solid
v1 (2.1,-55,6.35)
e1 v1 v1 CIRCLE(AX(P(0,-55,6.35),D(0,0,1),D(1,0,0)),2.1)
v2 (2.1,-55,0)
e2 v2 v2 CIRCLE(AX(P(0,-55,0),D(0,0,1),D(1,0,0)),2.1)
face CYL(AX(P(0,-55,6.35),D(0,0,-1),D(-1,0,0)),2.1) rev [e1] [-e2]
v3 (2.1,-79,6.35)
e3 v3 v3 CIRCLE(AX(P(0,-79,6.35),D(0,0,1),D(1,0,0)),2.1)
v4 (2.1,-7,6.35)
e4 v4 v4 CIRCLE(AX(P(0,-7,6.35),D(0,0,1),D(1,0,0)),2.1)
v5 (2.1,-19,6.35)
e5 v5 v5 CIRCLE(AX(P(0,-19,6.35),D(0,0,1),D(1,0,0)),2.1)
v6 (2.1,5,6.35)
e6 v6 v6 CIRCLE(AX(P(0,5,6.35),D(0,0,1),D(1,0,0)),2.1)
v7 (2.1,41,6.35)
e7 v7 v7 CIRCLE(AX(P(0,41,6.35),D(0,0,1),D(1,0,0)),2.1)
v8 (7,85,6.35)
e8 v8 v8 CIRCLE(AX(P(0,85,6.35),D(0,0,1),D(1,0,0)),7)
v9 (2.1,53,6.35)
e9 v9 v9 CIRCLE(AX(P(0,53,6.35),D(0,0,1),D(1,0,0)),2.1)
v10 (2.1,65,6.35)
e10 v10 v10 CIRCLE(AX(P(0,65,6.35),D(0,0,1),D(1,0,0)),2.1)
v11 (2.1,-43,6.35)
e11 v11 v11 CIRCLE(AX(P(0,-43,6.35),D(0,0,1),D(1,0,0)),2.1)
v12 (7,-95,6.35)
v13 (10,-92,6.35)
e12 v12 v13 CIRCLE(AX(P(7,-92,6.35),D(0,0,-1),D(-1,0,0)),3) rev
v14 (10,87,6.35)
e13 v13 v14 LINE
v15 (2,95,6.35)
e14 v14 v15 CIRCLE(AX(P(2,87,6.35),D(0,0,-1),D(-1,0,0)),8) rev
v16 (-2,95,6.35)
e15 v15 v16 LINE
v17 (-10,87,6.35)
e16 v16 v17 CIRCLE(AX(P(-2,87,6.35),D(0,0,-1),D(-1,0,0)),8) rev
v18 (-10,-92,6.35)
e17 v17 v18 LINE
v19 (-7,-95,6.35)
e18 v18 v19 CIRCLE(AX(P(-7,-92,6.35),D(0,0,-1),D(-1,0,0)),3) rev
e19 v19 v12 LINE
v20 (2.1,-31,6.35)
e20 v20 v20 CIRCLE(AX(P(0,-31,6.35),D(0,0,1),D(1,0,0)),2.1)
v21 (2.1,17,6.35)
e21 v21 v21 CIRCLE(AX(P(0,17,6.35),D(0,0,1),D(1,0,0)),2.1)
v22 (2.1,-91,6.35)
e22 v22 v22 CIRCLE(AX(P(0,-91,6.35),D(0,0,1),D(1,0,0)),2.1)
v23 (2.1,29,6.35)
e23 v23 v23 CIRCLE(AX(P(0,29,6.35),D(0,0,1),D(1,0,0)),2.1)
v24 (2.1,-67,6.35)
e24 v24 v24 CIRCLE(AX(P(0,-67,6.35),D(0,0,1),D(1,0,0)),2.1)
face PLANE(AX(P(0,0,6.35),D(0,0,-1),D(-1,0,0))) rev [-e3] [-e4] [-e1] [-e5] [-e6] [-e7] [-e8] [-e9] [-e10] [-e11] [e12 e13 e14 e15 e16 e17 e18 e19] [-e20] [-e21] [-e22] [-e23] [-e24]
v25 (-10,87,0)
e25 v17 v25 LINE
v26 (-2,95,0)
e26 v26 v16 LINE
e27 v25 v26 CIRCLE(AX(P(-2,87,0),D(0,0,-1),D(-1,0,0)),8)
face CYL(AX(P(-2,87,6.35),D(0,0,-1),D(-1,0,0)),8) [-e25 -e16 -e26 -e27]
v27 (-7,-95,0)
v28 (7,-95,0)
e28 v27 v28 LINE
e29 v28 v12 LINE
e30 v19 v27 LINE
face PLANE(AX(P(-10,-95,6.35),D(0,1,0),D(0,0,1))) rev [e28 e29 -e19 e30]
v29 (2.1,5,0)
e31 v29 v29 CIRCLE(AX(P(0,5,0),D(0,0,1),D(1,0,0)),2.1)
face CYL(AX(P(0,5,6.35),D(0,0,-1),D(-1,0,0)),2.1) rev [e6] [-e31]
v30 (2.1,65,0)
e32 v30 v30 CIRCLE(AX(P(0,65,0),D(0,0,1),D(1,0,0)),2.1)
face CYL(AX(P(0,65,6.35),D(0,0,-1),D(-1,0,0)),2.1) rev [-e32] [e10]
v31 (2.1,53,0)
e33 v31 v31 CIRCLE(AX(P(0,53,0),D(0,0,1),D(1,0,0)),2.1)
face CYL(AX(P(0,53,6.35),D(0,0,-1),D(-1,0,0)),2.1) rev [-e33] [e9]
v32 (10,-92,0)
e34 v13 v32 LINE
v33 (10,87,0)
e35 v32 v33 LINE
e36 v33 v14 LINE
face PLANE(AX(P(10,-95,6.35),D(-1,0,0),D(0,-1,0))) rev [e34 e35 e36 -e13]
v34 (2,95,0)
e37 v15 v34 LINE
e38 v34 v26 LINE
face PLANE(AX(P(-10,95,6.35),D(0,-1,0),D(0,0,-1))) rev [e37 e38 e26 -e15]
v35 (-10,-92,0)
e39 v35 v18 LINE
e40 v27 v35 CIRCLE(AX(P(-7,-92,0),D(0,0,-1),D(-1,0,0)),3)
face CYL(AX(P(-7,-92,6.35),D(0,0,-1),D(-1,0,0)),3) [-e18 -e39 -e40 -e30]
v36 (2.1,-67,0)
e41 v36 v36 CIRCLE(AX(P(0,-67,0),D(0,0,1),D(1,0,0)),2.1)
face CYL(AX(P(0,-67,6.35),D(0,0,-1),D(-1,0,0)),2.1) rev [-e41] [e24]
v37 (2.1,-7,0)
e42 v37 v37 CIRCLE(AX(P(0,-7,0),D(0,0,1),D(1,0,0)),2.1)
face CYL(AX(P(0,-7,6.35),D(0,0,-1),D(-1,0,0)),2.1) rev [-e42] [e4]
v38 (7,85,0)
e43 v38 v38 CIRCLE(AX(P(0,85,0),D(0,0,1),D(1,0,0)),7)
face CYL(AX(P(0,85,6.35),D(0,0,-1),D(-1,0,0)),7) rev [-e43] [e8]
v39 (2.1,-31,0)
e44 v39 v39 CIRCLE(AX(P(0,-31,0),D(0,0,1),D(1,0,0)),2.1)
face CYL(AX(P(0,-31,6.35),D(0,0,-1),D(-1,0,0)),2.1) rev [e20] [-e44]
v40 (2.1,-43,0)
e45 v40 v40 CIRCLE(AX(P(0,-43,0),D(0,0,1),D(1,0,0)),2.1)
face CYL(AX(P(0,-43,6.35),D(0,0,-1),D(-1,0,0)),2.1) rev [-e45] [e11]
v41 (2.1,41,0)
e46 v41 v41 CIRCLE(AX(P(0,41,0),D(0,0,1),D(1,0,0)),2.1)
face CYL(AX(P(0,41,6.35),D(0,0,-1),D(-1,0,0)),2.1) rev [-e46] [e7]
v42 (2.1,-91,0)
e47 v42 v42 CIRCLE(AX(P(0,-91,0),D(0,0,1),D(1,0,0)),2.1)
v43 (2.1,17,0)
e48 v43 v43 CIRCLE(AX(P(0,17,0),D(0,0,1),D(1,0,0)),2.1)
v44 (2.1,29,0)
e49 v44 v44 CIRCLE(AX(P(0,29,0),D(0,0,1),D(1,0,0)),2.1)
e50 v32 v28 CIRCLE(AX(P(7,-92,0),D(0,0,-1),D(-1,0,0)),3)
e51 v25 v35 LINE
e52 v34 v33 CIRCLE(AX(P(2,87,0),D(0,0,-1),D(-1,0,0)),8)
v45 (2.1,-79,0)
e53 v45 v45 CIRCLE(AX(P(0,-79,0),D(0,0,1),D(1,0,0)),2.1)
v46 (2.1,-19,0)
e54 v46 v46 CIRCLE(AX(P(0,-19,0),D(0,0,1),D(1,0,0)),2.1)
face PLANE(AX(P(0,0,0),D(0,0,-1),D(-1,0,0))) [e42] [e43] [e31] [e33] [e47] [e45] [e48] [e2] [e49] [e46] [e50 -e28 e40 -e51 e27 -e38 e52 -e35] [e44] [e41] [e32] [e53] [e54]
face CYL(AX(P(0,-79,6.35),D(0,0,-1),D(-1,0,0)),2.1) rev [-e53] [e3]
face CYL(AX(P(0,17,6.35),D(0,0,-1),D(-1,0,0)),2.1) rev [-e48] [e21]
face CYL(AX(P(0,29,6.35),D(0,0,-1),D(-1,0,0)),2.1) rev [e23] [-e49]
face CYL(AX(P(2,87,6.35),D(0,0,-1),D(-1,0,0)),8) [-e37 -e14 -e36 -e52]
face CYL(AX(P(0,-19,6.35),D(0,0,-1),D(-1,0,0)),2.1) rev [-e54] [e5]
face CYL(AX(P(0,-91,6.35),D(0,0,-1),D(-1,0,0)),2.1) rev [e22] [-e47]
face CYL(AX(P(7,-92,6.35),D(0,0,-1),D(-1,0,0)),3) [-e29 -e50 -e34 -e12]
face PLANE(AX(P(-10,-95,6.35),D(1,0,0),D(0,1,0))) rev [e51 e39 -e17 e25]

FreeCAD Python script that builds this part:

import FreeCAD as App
import Part
import Sketcher

V = App.Vector
Q = App.Units.Quantity


def edges_at(feature, points):
    """Names of the edges that pass closest to the given points."""
    edges = feature.Shape.Edges
    near = lambda p: min(range(len(edges)), key=lambda i: edges[i].distToShape(Part.Vertex(*p))[0])
    return sorted({f"Edge{near(p) + 1}" for p in points})

doc = App.newDocument("Part")
body = doc.addObject("PartDesign::Body", "Body")

sketch1 = body.newObject("Sketcher::SketchObject", "Sketch")
sketch1.AttachmentSupport = (doc.getObject("XY_Plane"), [""])
sketch1.MapMode = "FlatFace"
sketch1.addGeometry([
    Part.LineSegment(V(-10, 95, 0), V(-10, -95, 0)),
    Part.LineSegment(V(-10, -95, 0), V(10, -95, 0)),
    Part.LineSegment(V(10, -95, 0), V(10, 95, 0)),
    Part.LineSegment(V(10, 95, 0), V(-10, 95, 0)),
    Part.Circle(V(0, -91, 0), V(0, 0, 1), 2.1),
    Part.Circle(V(0, -79, 0), V(0, 0, 1), 2.1),
    Part.Circle(V(0, -67, 0), V(0, 0, 1), 2.1),
    Part.Circle(V(0, -55, 0), V(0, 0, 1), 2.1),
    Part.Circle(V(0, -43, 0), V(0, 0, 1), 2.1),
    Part.Circle(V(0, -31, 0), V(0, 0, 1), 2.1),
    Part.Circle(V(0, -19, 0), V(0, 0, 1), 2.1),
    Part.Circle(V(0, -7, 0), V(0, 0, 1), 2.1),
    Part.Circle(V(0, 5, 0), V(0, 0, 1), 2.1),
    Part.Circle(V(0, 17, 0), V(0, 0, 1), 2.1),
    Part.Circle(V(0, 29, 0), V(0, 0, 1), 2.1),
    Part.Circle(V(0, 41, 0), V(0, 0, 1), 2.1),
    Part.Circle(V(0, 53, 0), V(0, 0, 1), 2.1),
    Part.Circle(V(0, 65, 0), V(0, 0, 1), 2.1),
    Part.Circle(V(0, 85, 0), V(0, 0, 1), 7),
], False)
sketch1.addConstraint([
    Sketcher.Constraint("Coincident", 0, 2, 1, 1),
    Sketcher.Constraint("Coincident", 1, 2, 2, 1),
    Sketcher.Constraint("Coincident", 2, 2, 3, 1),
    Sketcher.Constraint("Coincident", 3, 2, 0, 1),
    Sketcher.Constraint("Vertical", 0),
    Sketcher.Constraint("Horizontal", 1),
    Sketcher.Constraint("Vertical", 2),
    Sketcher.Constraint("Horizontal", 3),
    Sketcher.Constraint("Equal", 4, 5),
    Sketcher.Constraint("Equal", 5, 6),
    Sketcher.Constraint("Equal", 6, 7),
    Sketcher.Constraint("Equal", 7, 8),
    Sketcher.Constraint("Equal", 8, 9),
    Sketcher.Constraint("Equal", 9, 10),
    Sketcher.Constraint("Equal", 10, 11),
    Sketcher.Constraint("Equal", 11, 12),
    Sketcher.Constraint("Equal", 12, 13),
    Sketcher.Constraint("Equal", 13, 14),
    Sketcher.Constraint("Equal", 14, 15),
    Sketcher.Constraint("Equal", 15, 16),
    Sketcher.Constraint("Equal", 16, 17),
    Sketcher.Constraint("Symmetric", 0, 2, 2, 2, -1, 1),
    Sketcher.Constraint("PointOnObject", 4, 3, -2),
    Sketcher.Constraint("PointOnObject", 5, 3, -2),
    Sketcher.Constraint("PointOnObject", 6, 3, -2),
    Sketcher.Constraint("PointOnObject", 7, 3, -2),
    Sketcher.Constraint("PointOnObject", 8, 3, -2),
    Sketcher.Constraint("PointOnObject", 9, 3, -2),
    Sketcher.Constraint("PointOnObject", 10, 3, -2),
    Sketcher.Constraint("PointOnObject", 11, 3, -2),
    Sketcher.Constraint("PointOnObject", 12, 3, -2),
    Sketcher.Constraint("PointOnObject", 13, 3, -2),
    Sketcher.Constraint("PointOnObject", 14, 3, -2),
    Sketcher.Constraint("PointOnObject", 15, 3, -2),
    Sketcher.Constraint("PointOnObject", 16, 3, -2),
    Sketcher.Constraint("PointOnObject", 17, 3, -2),
    Sketcher.Constraint("PointOnObject", 18, 3, -2),
    Sketcher.Constraint("Diameter", 18, Q("14 mm")),
    Sketcher.Constraint("Diameter", 4, Q("4.2 mm")),
    Sketcher.Constraint("DistanceX", 1, 1, 1, 2, Q("20 mm")),
    Sketcher.Constraint("DistanceY", 0, 2, 0, 1, Q("190 mm")),
    Sketcher.Constraint("DistanceY", 4, 3, -1, 1, Q("91 mm")),
    Sketcher.Constraint("DistanceY", 5, 3, -1, 1, Q("79 mm")),
    Sketcher.Constraint("DistanceY", 6, 3, -1, 1, Q("67 mm")),
    Sketcher.Constraint("DistanceY", 7, 3, -1, 1, Q("55 mm")),
    Sketcher.Constraint("DistanceY", 8, 3, -1, 1, Q("43 mm")),
    Sketcher.Constraint("DistanceY", 9, 3, -1, 1, Q("31 mm")),
    Sketcher.Constraint("DistanceY", 10, 3, -1, 1, Q("19 mm")),
    Sketcher.Constraint("DistanceY", 11, 3, -1, 1, Q("7 mm")),
    Sketcher.Constraint("DistanceY", -1, 1, 12, 3, Q("5 mm")),
    Sketcher.Constraint("DistanceY", -1, 1, 13, 3, Q("17 mm")),
    Sketcher.Constraint("DistanceY", -1, 1, 14, 3, Q("29 mm")),
    Sketcher.Constraint("DistanceY", -1, 1, 15, 3, Q("41 mm")),
    Sketcher.Constraint("DistanceY", -1, 1, 16, 3, Q("53 mm")),
    Sketcher.Constraint("DistanceY", -1, 1, 17, 3, Q("65 mm")),
    Sketcher.Constraint("DistanceY", -1, 1, 18, 3, Q("85 mm")),
])
pad1 = body.newObject("PartDesign::Pad", "Pad")
pad1.Profile = sketch1
pad1.Length = 6.35
doc.recompute()

fillet = body.newObject("PartDesign::Fillet", "Fillet")
fillet.Base = (pad1, edges_at(pad1, [(10, -95, 3.175), (-10, -95, 3.175)]))
fillet.Radius = 3
doc.recompute()

fillet2 = body.newObject("PartDesign::Fillet", "Fillet001")
fillet2.Base = (fillet, edges_at(fillet, [(-10, 95, 3.175), (10, 95, 3.175)]))
fillet2.Radius = 8

doc.recompute()
